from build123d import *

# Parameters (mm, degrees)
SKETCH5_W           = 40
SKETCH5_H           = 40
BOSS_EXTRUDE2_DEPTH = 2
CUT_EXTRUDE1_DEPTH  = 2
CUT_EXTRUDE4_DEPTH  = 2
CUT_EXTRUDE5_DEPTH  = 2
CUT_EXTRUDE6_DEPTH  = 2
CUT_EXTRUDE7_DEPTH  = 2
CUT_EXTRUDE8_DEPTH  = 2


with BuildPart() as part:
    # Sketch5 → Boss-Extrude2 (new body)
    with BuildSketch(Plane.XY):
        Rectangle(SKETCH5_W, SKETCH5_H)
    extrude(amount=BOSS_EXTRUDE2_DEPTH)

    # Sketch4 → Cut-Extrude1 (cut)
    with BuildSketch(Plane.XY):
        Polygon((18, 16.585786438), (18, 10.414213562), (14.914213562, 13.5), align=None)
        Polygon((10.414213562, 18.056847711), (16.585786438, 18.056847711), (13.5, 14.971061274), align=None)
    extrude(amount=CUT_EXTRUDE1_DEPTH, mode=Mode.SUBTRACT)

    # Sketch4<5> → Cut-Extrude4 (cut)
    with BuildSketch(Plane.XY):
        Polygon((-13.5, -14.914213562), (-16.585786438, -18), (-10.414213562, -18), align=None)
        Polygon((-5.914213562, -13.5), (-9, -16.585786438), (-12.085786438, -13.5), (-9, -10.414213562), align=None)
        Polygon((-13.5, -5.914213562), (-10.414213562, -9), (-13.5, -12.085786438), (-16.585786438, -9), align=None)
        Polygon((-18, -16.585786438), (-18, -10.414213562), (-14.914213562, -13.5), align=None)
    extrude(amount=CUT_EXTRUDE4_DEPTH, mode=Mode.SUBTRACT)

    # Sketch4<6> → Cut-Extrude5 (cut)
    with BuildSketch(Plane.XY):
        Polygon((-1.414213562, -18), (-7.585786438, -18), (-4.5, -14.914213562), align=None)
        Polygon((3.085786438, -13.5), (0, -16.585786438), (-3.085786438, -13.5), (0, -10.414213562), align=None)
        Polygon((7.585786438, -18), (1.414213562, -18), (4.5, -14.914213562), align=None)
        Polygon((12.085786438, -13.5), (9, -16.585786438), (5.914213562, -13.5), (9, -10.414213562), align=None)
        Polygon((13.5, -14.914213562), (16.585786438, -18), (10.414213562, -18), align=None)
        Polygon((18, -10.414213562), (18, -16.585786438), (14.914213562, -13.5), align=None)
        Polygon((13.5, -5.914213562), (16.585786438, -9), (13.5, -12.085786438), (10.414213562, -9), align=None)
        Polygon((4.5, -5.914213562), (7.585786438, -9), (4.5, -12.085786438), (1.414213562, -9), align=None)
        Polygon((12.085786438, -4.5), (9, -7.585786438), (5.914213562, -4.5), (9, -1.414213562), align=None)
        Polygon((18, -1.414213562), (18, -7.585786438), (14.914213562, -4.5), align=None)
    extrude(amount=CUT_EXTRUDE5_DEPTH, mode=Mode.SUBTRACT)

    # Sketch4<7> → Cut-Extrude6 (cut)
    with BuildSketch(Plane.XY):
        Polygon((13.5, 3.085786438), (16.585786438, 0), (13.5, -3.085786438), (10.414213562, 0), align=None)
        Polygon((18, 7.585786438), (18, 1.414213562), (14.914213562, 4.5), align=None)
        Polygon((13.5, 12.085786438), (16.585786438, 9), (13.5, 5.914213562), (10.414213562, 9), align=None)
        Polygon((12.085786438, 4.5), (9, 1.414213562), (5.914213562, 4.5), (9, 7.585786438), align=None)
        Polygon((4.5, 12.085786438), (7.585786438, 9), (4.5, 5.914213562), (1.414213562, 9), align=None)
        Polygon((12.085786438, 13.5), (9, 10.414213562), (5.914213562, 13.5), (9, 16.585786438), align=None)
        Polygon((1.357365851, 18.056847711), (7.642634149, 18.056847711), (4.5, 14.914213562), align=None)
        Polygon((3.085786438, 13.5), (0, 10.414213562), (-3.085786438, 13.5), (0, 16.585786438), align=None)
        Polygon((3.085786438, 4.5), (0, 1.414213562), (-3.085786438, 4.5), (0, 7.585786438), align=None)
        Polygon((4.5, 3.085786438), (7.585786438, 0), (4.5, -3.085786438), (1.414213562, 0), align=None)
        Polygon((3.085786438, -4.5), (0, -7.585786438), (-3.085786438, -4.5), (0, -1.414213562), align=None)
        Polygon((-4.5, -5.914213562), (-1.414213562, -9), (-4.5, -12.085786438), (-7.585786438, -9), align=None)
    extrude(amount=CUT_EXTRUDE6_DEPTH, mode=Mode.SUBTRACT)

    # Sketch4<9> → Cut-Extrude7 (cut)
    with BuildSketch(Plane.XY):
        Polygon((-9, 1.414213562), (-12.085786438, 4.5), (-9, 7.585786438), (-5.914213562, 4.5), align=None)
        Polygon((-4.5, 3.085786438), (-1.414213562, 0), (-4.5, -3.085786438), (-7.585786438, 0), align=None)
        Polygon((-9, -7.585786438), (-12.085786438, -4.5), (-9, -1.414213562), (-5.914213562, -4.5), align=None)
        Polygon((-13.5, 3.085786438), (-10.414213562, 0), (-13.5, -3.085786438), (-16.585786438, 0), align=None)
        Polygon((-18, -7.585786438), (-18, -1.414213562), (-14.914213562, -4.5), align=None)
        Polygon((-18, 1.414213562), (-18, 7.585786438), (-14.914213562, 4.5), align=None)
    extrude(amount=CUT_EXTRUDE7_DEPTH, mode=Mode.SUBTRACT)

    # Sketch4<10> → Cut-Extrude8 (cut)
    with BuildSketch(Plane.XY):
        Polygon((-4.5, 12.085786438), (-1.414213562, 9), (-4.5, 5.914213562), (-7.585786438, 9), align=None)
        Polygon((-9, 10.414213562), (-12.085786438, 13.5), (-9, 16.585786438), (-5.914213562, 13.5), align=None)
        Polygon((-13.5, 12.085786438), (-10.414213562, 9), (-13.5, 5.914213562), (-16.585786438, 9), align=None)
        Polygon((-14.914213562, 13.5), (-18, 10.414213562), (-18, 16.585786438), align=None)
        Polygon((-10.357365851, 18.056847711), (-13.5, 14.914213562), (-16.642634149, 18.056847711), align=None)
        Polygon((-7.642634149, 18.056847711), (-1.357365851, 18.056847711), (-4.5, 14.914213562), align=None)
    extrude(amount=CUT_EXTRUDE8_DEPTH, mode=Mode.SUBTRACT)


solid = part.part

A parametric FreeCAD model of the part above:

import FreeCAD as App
import Part
import Sketcher

V = App.Vector
Q = App.Units.Quantity

doc = App.newDocument("Part")
params = doc.addObject("Spreadsheet::Sheet", "Params")
for row, (alias, value) in enumerate([
    ("sketch1_width", "40 mm"),
    ("pad1_length", "2 mm"),
    ("pocket1_length", "2 mm"),
    ("pocket2_length", "2 mm"),
    ("pocket3_length", "2 mm"),
    ("pocket4_length", "2 mm"),
    ("pocket5_length", "2 mm"),
    ("pocket6_length", "2 mm"),
], start=1):
    params.set(f"A{row}", alias)
    params.set(f"B{row}", "=" + value)
    params.setAlias(f"B{row}", alias)

body = doc.addObject("PartDesign::Body", "Body")

sketch1 = body.newObject("Sketcher::SketchObject", "Sketch")
sketch1.AttachmentSupport = (doc.getObject("XY_Plane"), [""])
sketch1.MapMode = "FlatFace"
sketch1.addGeometry(Part.LineSegment(V(-20, 20, 0), V(-20, -20, 0)), False)
sketch1.addGeometry(Part.LineSegment(V(-20, -20, 0), V(20, -20, 0)), False)
sketch1.addGeometry(Part.LineSegment(V(20, -20, 0), V(20, 20, 0)), False)
sketch1.addGeometry(Part.LineSegment(V(20, 20, 0), V(-20, 20, 0)), False)
sketch1.addConstraint(Sketcher.Constraint("Coincident", 0, 2, 1, 1))
sketch1.addConstraint(Sketcher.Constraint("Coincident", 1, 2, 2, 1))
sketch1.addConstraint(Sketcher.Constraint("Coincident", 2, 2, 3, 1))
sketch1.addConstraint(Sketcher.Constraint("Coincident", 3, 2, 0, 1))
sketch1.addConstraint(Sketcher.Constraint("Vertical", 0))
sketch1.addConstraint(Sketcher.Constraint("Horizontal", 1))
sketch1.addConstraint(Sketcher.Constraint("Vertical", 2))
sketch1.addConstraint(Sketcher.Constraint("Horizontal", 3))
sketch1.addConstraint(Sketcher.Constraint("Symmetric", 0, 2, 2, 2, -1, 1))
sketch1.addConstraint(Sketcher.Constraint("Equal", 3, 0))
sketch1.addConstraint(Sketcher.Constraint("DistanceX", 1, 1, 1, 2, Q("40 mm")))
sketch1.setExpression("Constraints[10]", "Params.sketch1_width")
pad1 = body.newObject("PartDesign::Pad", "Pad")
pad1.Profile = sketch1
pad1.setExpression("Length", "Params.pad1_length")

sketch2 = body.newObject("Sketcher::SketchObject", "Sketch001")
sketch2.AttachmentSupport = (doc.getObject("XY_Plane"), [""])
sketch2.MapMode = "FlatFace"
sketch2.addGeometry(Part.LineSegment(V(18, 10.4, 0), V(18, 16.6, 0)), False)
sketch2.addGeometry(Part.LineSegment(V(18, 16.6, 0), V(14.9, 13.5, 0)), False)
sketch2.addGeometry(Part.LineSegment(V(14.9, 13.5, 0), V(18, 10.4, 0)), False)
sketch2.addGeometry(Part.LineSegment(V(16.6, 18.1, 0), V(10.4, 18.1, 0)), False)
sketch2.addGeometry(Part.LineSegment(V(10.4, 18.1, 0), V(13.5, 15, 0)), False)
sketch2.addGeometry(Part.LineSegment(V(13.5, 15, 0), V(16.6, 18.1, 0)), False)
sketch2.addConstraint(Sketcher.Constraint("Coincident", 0, 2, 1, 1))
sketch2.addConstraint(Sketcher.Constraint("Coincident", 1, 2, 2, 1))
sketch2.addConstraint(Sketcher.Constraint("Coincident", 2, 2, 0, 1))
sketch2.addConstraint(Sketcher.Constraint("Coincident", 3, 2, 4, 1))
sketch2.addConstraint(Sketcher.Constraint("Coincident", 4, 2, 5, 1))
sketch2.addConstraint(Sketcher.Constraint("Coincident", 5, 2, 3, 1))
sketch2.addConstraint(Sketcher.Constraint("Vertical", 0))
sketch2.addConstraint(Sketcher.Constraint("Horizontal", 3))
sketch2.addConstraint(Sketcher.Constraint("Perpendicular", 1, 2))
sketch2.addConstraint(Sketcher.Constraint("Parallel", 2, 4))
sketch2.addConstraint(Sketcher.Constraint("Perpendicular", 4, 5))
sketch2.addConstraint(Sketcher.Constraint("Equal", 3, 0))
sketch2.addConstraint(Sketcher.Constraint("Equal", 1, 2))
sketch2.addConstraint(Sketcher.Constraint("DistanceX", -1, 1, 0, 2, Q("18 mm")))
sketch2.addConstraint(Sketcher.Constraint("DistanceY", -1, 1, 1, 2, Q("13.5 mm")))
sketch2.addConstraint(Sketcher.Constraint("DistanceX", -1, 1, 4, 2, Q("13.5 mm")))
sketch2.addConstraint(Sketcher.Constraint("Distance", 1, Q("4.363961 mm")))
sketch2.addConstraint(Sketcher.Constraint("DistanceY", -1, 1, 4, 2, Q("14.971061 mm")))
pocket1 = body.newObject("PartDesign::Pocket", "Pocket")
pocket1.Profile = sketch2
pocket1.setExpression("Length", "Params.pocket1_length")
pocket1.Reversed = True

sketch3 = body.newObject("Sketcher::SketchObject", "Sketch002")
sketch3.AttachmentSupport = (doc.getObject("XY_Plane"), [""])
sketch3.MapMode = "FlatFace"
sketch3.addGeometry(Part.LineSegment(V(-13.5, -14.9, 0), V(-16.6, -18, 0)), False)
sketch3.addGeometry(Part.LineSegment(V(-16.6, -18, 0), V(-10.4, -18, 0)), False)
sketch3.addGeometry(Part.LineSegment(V(-10.4, -18, 0), V(-13.5, -14.9, 0)), False)
sketch3.addGeometry(Part.LineSegment(V(-9, -16.6, 0), V(-5.9, -13.5, 0)), False)
sketch3.addGeometry(Part.LineSegment(V(-5.9, -13.5, 0), V(-9, -10.4, 0)), False)
sketch3.addGeometry(Part.LineSegment(V(-9, -10.4, 0), V(-12.1, -13.5, 0)), False)
sketch3.addGeometry(Part.LineSegment(V(-12.1, -13.5, 0), V(-9, -16.6, 0)), False)
sketch3.addGeometry(Part.LineSegment(V(-10.4, -9, 0), V(-13.5, -5.9, 0)), False)
sketch3.addGeometry(Part.LineSegment(V(-13.5, -5.9, 0), V(-16.6, -9, 0)), False)
sketch3.addGeometry(Part.LineSegment(V(-16.6, -9, 0), V(-13.5, -12.1, 0)), False)
sketch3.addGeometry(Part.LineSegment(V(-13.5, -12.1, 0), V(-10.4, -9, 0)), False)
sketch3.addGeometry(Part.LineSegment(V(-18, -10.4, 0), V(-18, -16.6, 0)), False)
sketch3.addGeometry(Part.LineSegment(V(-18, -16.6, 0), V(-14.9, -13.5, 0)), False)
sketch3.addGeometry(Part.LineSegment(V(-14.9, -13.5, 0), V(-18, -10.4, 0)), False)
sketch3.addConstraint(Sketcher.Constraint("Coincident", 0, 2, 1, 1))
sketch3.addConstraint(Sketcher.Constraint("Coincident", 1, 2, 2, 1))
sketch3.addConstraint(Sketcher.Constraint("Coincident", 2, 2, 0, 1))
sketch3.addConstraint(Sketcher.Constraint("Coincident", 3, 2, 4, 1))
sketch3.addConstraint(Sketcher.Constraint("Coincident", 4, 2, 5, 1))
sketch3.addConstraint(Sketcher.Constraint("Coincident", 5, 2, 6, 1))
sketch3.addConstraint(Sketcher.Constraint("Coincident", 6, 2, 3, 1))
sketch3.addConstraint(Sketcher.Constraint("Coincident", 7, 2, 8, 1))
sketch3.addConstraint(Sketcher.Constraint("Coincident", 8, 2, 9, 1))
sketch3.addConstraint(Sketcher.Constraint("Coincident", 9, 2, 10, 1))
sketch3.addConstraint(Sketcher.Constraint("Coincident", 10, 2, 7, 1))
sketch3.addConstraint(Sketcher.Constraint("Coincident", 11, 2, 12, 1))
sketch3.addConstraint(Sketcher.Constraint("Coincident", 12, 2, 13, 1))
sketch3.addConstraint(Sketcher.Constraint("Coincident", 13, 2, 11, 1))
sketch3.addConstraint(Sketcher.Constraint("Horizontal", 1))
sketch3.addConstraint(Sketcher.Constraint("Vertical", 11))
sketch3.addConstraint(Sketcher.Constraint("Perpendicular", 0, 2))
sketch3.addConstraint(Sketcher.Constraint("Perpendicular", 2, 3))
sketch3.addConstraint(Sketcher.Constraint("Perpendicular", 3, 4))
sketch3.addConstraint(Sketcher.Constraint("Perpendicular", 4, 5))
sketch3.addConstraint(Sketcher.Constraint("Perpendicular", 5, 6))
sketch3.addConstraint(Sketcher.Constraint("Parallel", 6, 7))
sketch3.addConstraint(Sketcher.Constraint("Perpendicular", 7, 8))
sketch3.addConstraint(Sketcher.Constraint("Perpendicular", 8, 9))
sketch3.addConstraint(Sketcher.Constraint("Perpendicular", 9, 10))
sketch3.addConstraint(Sketcher.Constraint("Parallel", 10, 12))
sketch3.addConstraint(Sketcher.Constraint("Perpendicular", 12, 13))
sketch3.addConstraint(Sketcher.Constraint("Horizontal", 3, 2, 5, 2))
sketch3.addConstraint(Sketcher.Constraint("Horizontal", 8, 2, 10, 2))
sketch3.addConstraint(Sketcher.Constraint("Horizontal", 6, 2, 11, 2))
sketch3.addConstraint(Sketcher.Constraint("Horizontal", 5, 2, 12, 2))
sketch3.addConstraint(Sketcher.Constraint("Horizontal", 4, 2, 13, 2))
sketch3.addConstraint(Sketcher.Constraint("Vertical", 2, 2, 7, 2))
sketch3.addConstraint(Sketcher.Constraint("Vertical", 0, 2, 8, 2))
sketch3.addConstraint(Sketcher.Constraint("Equal", 1, 11))
sketch3.addConstraint(Sketcher.Constraint("DistanceY", 0, 2, -1, 1, Q("18 mm")))
sketch3.addConstraint(Sketcher.Constraint("DistanceX", 4, 2, -1, 1, Q("9 mm")))
sketch3.addConstraint(Sketcher.Constraint("DistanceY", 8, 2, -1, 1, Q("9 mm")))
sketch3.addConstraint(Sketcher.Constraint("DistanceX", 11, 2, -1, 1, Q("18 mm")))
sketch3.addConstraint(Sketcher.Constraint("DistanceX", 2, 2, -1, 1, Q("13.5 mm")))
sketch3.addConstraint(Sketcher.Constraint("DistanceY", 3, 2, -1, 1, Q("13.5 mm")))
sketch3.addConstraint(Sketcher.Constraint("Distance", 0, Q("4.363961 mm")))
pocket2 = body.newObject("PartDesign::Pocket", "Pocket001")
pocket2.Profile = sketch3
pocket2.setExpression("Length", "Params.pocket2_length")
pocket2.Reversed = True

sketch4 = body.newObject("Sketcher::SketchObject", "Sketch003")
sketch4.AttachmentSupport = (doc.getObject("XY_Plane"), [""])
sketch4.MapMode = "FlatFace"
sketch4.addGeometry(Part.LineSegment(V(-7.6, -18, 0), V(-1.4, -18, 0)), False)
sketch4.addGeometry(Part.LineSegment(V(-1.4, -18, 0), V(-4.5, -14.9, 0)), False)
sketch4.addGeometry(Part.LineSegment(V(-4.5, -14.9, 0), V(-7.6, -18, 0)), False)
sketch4.addGeometry(Part.LineSegment(V(0, -16.6, 0), V(3.1, -13.5, 0)), False)
sketch4.addGeometry(Part.LineSegment(V(3.1, -13.5, 0), V(0, -10.4, 0)), False)
sketch4.addGeometry(Part.LineSegment(V(0, -10.4, 0), V(-3.1, -13.5, 0)), False)
sketch4.addGeometry(Part.LineSegment(V(-3.1, -13.5, 0), V(0, -16.6, 0)), False)
sketch4.addGeometry(Part.LineSegment(V(1.4, -18, 0), V(7.6, -18, 0)), False)
sketch4.addGeometry(Part.LineSegment(V(7.6, -18, 0), V(4.5, -14.9, 0)), False)
sketch4.addGeometry(Part.LineSegment(V(4.5, -14.9, 0), V(1.4, -18, 0)), False)
sketch4.addGeometry(Part.LineSegment(V(9, -16.6, 0), V(12.1, -13.5, 0)), False)
sketch4.addGeometry(Part.LineSegment(V(12.1, -13.5, 0), V(9, -10.4, 0)), False)
sketch4.addGeometry(Part.LineSegment(V(9, -10.4, 0), V(5.9, -13.5, 0)), False)
sketch4.addGeometry(Part.LineSegment(V(5.9, -13.5, 0), V(9, -16.6, 0)), False)
sketch4.addGeometry(Part.LineSegment(V(16.6, -18, 0), V(13.5, -14.9, 0)), False)
sketch4.addGeometry(Part.LineSegment(V(13.5, -14.9, 0), V(10.4, -18, 0)), False)
sketch4.addGeometry(Part.LineSegment(V(10.4, -18, 0), V(16.6, -18, 0)), False)
sketch4.addGeometry(Part.LineSegment(V(18, -16.6, 0), V(18, -10.4, 0)), False)
sketch4.addGeometry(Part.LineSegment(V(18, -10.4, 0), V(14.9, -13.5, 0)), False)
sketch4.addGeometry(Part.LineSegment(V(14.9, -13.5, 0), V(18, -16.6, 0)), False)
sketch4.addGeometry(Part.LineSegment(V(16.6, -9, 0), V(13.5, -5.9, 0)), False)
sketch4.addGeometry(Part.LineSegment(V(13.5, -5.9, 0), V(10.4, -9, 0)), False)
sketch4.addGeometry(Part.LineSegment(V(10.4, -9, 0), V(13.5, -12.1, 0)), False)
sketch4.addGeometry(Part.LineSegment(V(13.5, -12.1, 0), V(16.6, -9, 0)), False)
sketch4.addGeometry(Part.LineSegment(V(7.6, -9, 0), V(4.5, -5.9, 0)), False)
sketch4.addGeometry(Part.LineSegment(V(4.5, -5.9, 0), V(1.4, -9, 0)), False)
sketch4.addGeometry(Part.LineSegment(V(1.4, -9, 0), V(4.5, -12.1, 0)), False)
sketch4.addGeometry(Part.LineSegment(V(4.5, -12.1, 0), V(7.6, -9, 0)), False)
sketch4.addGeometry(Part.LineSegment(V(9, -7.6, 0), V(12.1, -4.5, 0)), False)
sketch4.addGeometry(Part.LineSegment(V(12.1, -4.5, 0), V(9, -1.4, 0)), False)
sketch4.addGeometry(Part.LineSegment(V(9, -1.4, 0), V(5.9, -4.5, 0)), False)
sketch4.addGeometry(Part.LineSegment(V(5.9, -4.5, 0), V(9, -7.6, 0)), False)
sketch4.addGeometry(Part.LineSegment(V(18, -7.6, 0), V(18, -1.4, 0)), False)
sketch4.addGeometry(Part.LineSegment(V(18, -1.4, 0), V(14.9, -4.5, 0)), False)
sketch4.addGeometry(Part.LineSegment(V(14.9, -4.5, 0), V(18, -7.6, 0)), False)
sketch4.addConstraint(Sketcher.Constraint("Coincident", 0, 2, 1, 1))
sketch4.addConstraint(Sketcher.Constraint("Coincident", 1, 2, 2, 1))
sketch4.addConstraint(Sketcher.Constraint("Coincident", 2, 2, 0, 1))
sketch4.addConstraint(Sketcher.Constraint("Coincident", 3, 2, 4, 1))
sketch4.addConstraint(Sketcher.Constraint("Coincident", 4, 2, 5, 1))
sketch4.addConstraint(Sketcher.Constraint("Coincident", 5, 2, 6, 1))
sketch4.addConstraint(Sketcher.Constraint("Coincident", 6, 2, 3, 1))
sketch4.addConstraint(Sketcher.Constraint("Coincident", 7, 2, 8, 1))
sketch4.addConstraint(Sketcher.Constraint("Coincident", 8, 2, 9, 1))
sketch4.addConstraint(Sketcher.Constraint("Coincident", 9, 2, 7, 1))
sketch4.addConstraint(Sketcher.Constraint("Coincident", 10, 2, 11, 1))
sketch4.addConstraint(Sketcher.Constraint("Coincident", 11, 2, 12, 1))
sketch4.addConstraint(Sketcher.Constraint("Coincident", 12, 2, 13, 1))
sketch4.addConstraint(Sketcher.Constraint("Coincident", 13, 2, 10, 1))
sketch4.addConstraint(Sketcher.Constraint("Coincident", 14, 2, 15, 1))
sketch4.addConstraint(Sketcher.Constraint("Coincident", 15, 2, 16, 1))
sketch4.addConstraint(Sketcher.Constraint("Coincident", 16, 2, 14, 1))
sketch4.addConstraint(Sketcher.Constraint("Coincident", 17, 2, 18, 1))
sketch4.addConstraint(Sketcher.Constraint("Coincident", 18, 2, 19, 1))
sketch4.addConstraint(Sketcher.Constraint("Coincident", 19, 2, 17, 1))
sketch4.addConstraint(Sketcher.Constraint("Coincident", 20, 2, 21, 1))
sketch4.addConstraint(Sketcher.Constraint("Coincident", 21, 2, 22, 1))
sketch4.addConstraint(Sketcher.Constraint("Coincident", 22, 2, 23, 1))
sketch4.addConstraint(Sketcher.Constraint("Coincident", 23, 2, 20, 1))
sketch4.addConstraint(Sketcher.Constraint("Coincident", 24, 2, 25, 1))
sketch4.addConstraint(Sketcher.Constraint("Coincident", 25, 2, 26, 1))
sketch4.addConstraint(Sketcher.Constraint("Coincident", 26, 2, 27, 1))
sketch4.addConstraint(Sketcher.Constraint("Coincident", 27, 2, 24, 1))
sketch4.addConstraint(Sketcher.Constraint("Coincident", 28, 2, 29, 1))
sketch4.addConstraint(Sketcher.Constraint("Coincident", 29, 2, 30, 1))
sketch4.addConstraint(Sketcher.Constraint("Coincident", 30, 2, 31, 1))
sketch4.addConstraint(Sketcher.Constraint("Coincident", 31, 2, 28, 1))
sketch4.addConstraint(Sketcher.Constraint("Coincident", 32, 2, 33, 1))
sketch4.addConstraint(Sketcher.Constraint("Coincident", 33, 2, 34, 1))
sketch4.addConstraint(Sketcher.Constraint("Coincident", 34, 2, 32, 1))
sketch4.addConstraint(Sketcher.Constraint("Horizontal", 0))
sketch4.addConstraint(Sketcher.Constraint("Horizontal", 7))
sketch4.addConstraint(Sketcher.Constraint("Horizontal", 16))
sketch4.addConstraint(Sketcher.Constraint("Vertical", 17))
sketch4.addConstraint(Sketcher.Constraint("Vertical", 32))
sketch4.addConstraint(Sketcher.Constraint("Symmetric", 3, 2, 5, 2, -2))
sketch4.addConstraint(Sketcher.Constraint("Symmetric", 2, 2, 7, 2, -2))
sketch4.addConstraint(Sketcher.Constraint("Symmetric", 1, 2, 8, 2, -2))
sketch4.addConstraint(Sketcher.Constraint("PointOnObject", 4, 2, -2))
sketch4.addConstraint(Sketcher.Constraint("PointOnObject", 6, 2, -2))
sketch4.addConstraint(Sketcher.Constraint("Perpendicular", 1, 2))
sketch4.addConstraint(Sketcher.Constraint("Parallel", 2, 3))
sketch4.addConstraint(Sketcher.Constraint("Perpendicular", 3, 4))
sketch4.addConstraint(Sketcher.Constraint("Perpendicular", 4, 5))
sketch4.addConstraint(Sketcher.Constraint("Perpendicular", 8, 9))
sketch4.addConstraint(Sketcher.Constraint("Parallel", 9, 10))
sketch4.addConstraint(Sketcher.Constraint("Perpendicular", 10, 11))
sketch4.addConstraint(Sketcher.Constraint("Perpendicular", 11, 12))
sketch4.addConstraint(Sketcher.Constraint("Perpendicular", 12, 13))
sketch4.addConstraint(Sketcher.Constraint("Parallel", 13, 14))
sketch4.addConstraint(Sketcher.Constraint("Perpendicular", 14, 15))
sketch4.addConstraint(Sketcher.Constraint("Parallel", 15, 18))
sketch4.addConstraint(Sketcher.Constraint("Perpendicular", 18, 19))
sketch4.addConstraint(Sketcher.Constraint("Parallel", 19, 20))
sketch4.addConstraint(Sketcher.Constraint("Perpendicular", 20, 21))
sketch4.addConstraint(Sketcher.Constraint("Perpendicular", 21, 22))
sketch4.addConstraint(Sketcher.Constraint("Perpendicular", 22, 23))
sketch4.addConstraint(Sketcher.Constraint("Perpendicular", 23, 24))
sketch4.addConstraint(Sketcher.Constraint("Perpendicular", 24, 25))
sketch4.addConstraint(Sketcher.Constraint("Perpendicular", 25, 26))
sketch4.addConstraint(Sketcher.Constraint("Perpendicular", 26, 27))
sketch4.addConstraint(Sketcher.Constraint("Parallel", 27, 28))
sketch4.addConstraint(Sketcher.Constraint("Perpendicular", 28, 29))
sketch4.addConstraint(Sketcher.Constraint("Perpendicular", 29, 30))
sketch4.addConstraint(Sketcher.Constraint("Perpendicular", 30, 31))
sketch4.addConstraint(Sketcher.Constraint("Perpendicular", 31, 33))
sketch4.addConstraint(Sketcher.Constraint("Perpendicular", 33, 34))
sketch4.addConstraint(Sketcher.Constraint("Horizontal", 5, 2, 10, 2))
sketch4.addConstraint(Sketcher.Constraint("Horizontal", 4, 2, 11, 2))
sketch4.addConstraint(Sketcher.Constraint("Horizontal", 10, 2, 12, 2))
sketch4.addConstraint(Sketcher.Constraint("Horizontal", 8, 2, 14, 2))
sketch4.addConstraint(Sketcher.Constraint("Horizontal", 9, 2, 15, 2))
sketch4.addConstraint(Sketcher.Constraint("Horizontal", 11, 2, 17, 2))
sketch4.addConstraint(Sketcher.Constraint("Horizontal", 12, 2, 18, 2))
sketch4.addConstraint(Sketcher.Constraint("Horizontal", 21, 2, 23, 2))
sketch4.addConstraint(Sketcher.Constraint("Horizontal", 20, 2, 24, 2))
sketch4.addConstraint(Sketcher.Constraint("Horizontal", 23, 2, 25, 2))
sketch4.addConstraint(Sketcher.Constraint("Horizontal", 22, 2, 26, 2))
sketch4.addConstraint(Sketcher.Constraint("Horizontal", 28, 2, 30, 2))
sketch4.addConstraint(Sketcher.Constraint("Horizontal", 29, 2, 32, 2))
sketch4.addConstraint(Sketcher.Constraint("Horizontal", 30, 2, 33, 2))
sketch4.addConstraint(Sketcher.Constraint("Vertical", 14, 2, 20, 2))
sketch4.addConstraint(Sketcher.Constraint("Vertical", 15, 2, 21, 2))
sketch4.addConstraint(Sketcher.Constraint("Vertical", 8, 2, 24, 2))
sketch4.addConstraint(Sketcher.Constraint("Vertical", 10, 2, 28, 2))
sketch4.addConstraint(Sketcher.Constraint("Vertical", 13, 2, 29, 2))
sketch4.addConstraint(Sketcher.Constraint("Vertical", 19, 2, 32, 2))
sketch4.addConstraint(Sketcher.Constraint("Equal", 16, 17))
sketch4.addConstraint(Sketcher.Constraint("DistanceY", 0, 2, -1, 1, Q("18 mm")))
sketch4.addConstraint(Sketcher.Constraint("DistanceX", -1, 1, 11, 2, Q("9 mm")))
sketch4.addConstraint(Sketcher.Constraint("DistanceX", -1, 1, 17, 2, Q("18 mm")))
sketch4.addConstraint(Sketcher.Constraint("DistanceY", 21, 2, -1, 1, Q("9 mm")))
sketch4.addConstraint(Sketcher.Constraint("DistanceX", 0, 2, 7, 2, Q("9 mm")))
sketch4.addConstraint(Sketcher.Constraint("DistanceX", 7, 2, 16, 2, Q("9 mm")))
sketch4.addConstraint(Sketcher.Constraint("DistanceY", 17, 2, 32, 2, Q("9 mm")))
sketch4.addConstraint(Sketcher.Constraint("DistanceY", 3, 2, -1, 1, Q("13.5 mm")))
sketch4.addConstraint(Sketcher.Constraint("Distance", 1, Q("4.363961 mm")))
pocket3 = body.newObject("PartDesign::Pocket", "Pocket002")
pocket3.Profile = sketch4
pocket3.setExpression("Length", "Params.pocket3_length")
pocket3.Reversed = True

sketch5 = body.newObject("Sketcher::SketchObject", "Sketch004")
sketch5.AttachmentSupport = (doc.getObject("XY_Plane"), [""])
sketch5.MapMode = "FlatFace"
sketch5.addGeometry(Part.LineSegment(V(16.6, 0, 0), V(13.5, 3.1, 0)), False)
sketch5.addGeometry(Part.LineSegment(V(13.5, 3.1, 0), V(10.4, 0, 0)), False)
sketch5.addGeometry(Part.LineSegment(V(10.4, 0, 0), V(13.5, -3.1, 0)), False)
sketch5.addGeometry(Part.LineSegment(V(13.5, -3.1, 0), V(16.6, 0, 0)), False)
sketch5.addGeometry(Part.LineSegment(V(18, 1.4, 0), V(18, 7.6, 0)), False)
sketch5.addGeometry(Part.LineSegment(V(18, 7.6, 0), V(14.9, 4.5, 0)), False)
sketch5.addGeometry(Part.LineSegment(V(14.9, 4.5, 0), V(18, 1.4, 0)), False)
sketch5.addGeometry(Part.LineSegment(V(16.6, 9, 0), V(13.5, 12.1, 0)), False)
sketch5.addGeometry(Part.LineSegment(V(13.5, 12.1, 0), V(10.4, 9, 0)), False)
sketch5.addGeometry(Part.LineSegment(V(10.4, 9, 0), V(13.5, 5.9, 0)), False)
sketch5.addGeometry(Part.LineSegment(V(13.5, 5.9, 0), V(16.6, 9, 0)), False)
sketch5.addGeometry(Part.LineSegment(V(9, 1.4, 0), V(12.1, 4.5, 0)), False)
sketch5.addGeometry(Part.LineSegment(V(12.1, 4.5, 0), V(9, 7.6, 0)), False)
sketch5.addGeometry(Part.LineSegment(V(9, 7.6, 0), V(5.9, 4.5, 0)), False)
sketch5.addGeometry(Part.LineSegment(V(5.9, 4.5, 0), V(9, 1.4, 0)), False)
sketch5.addGeometry(Part.LineSegment(V(7.6, 9, 0), V(4.5, 12.1, 0)), False)
sketch5.addGeometry(Part.LineSegment(V(4.5, 12.1, 0), V(1.4, 9, 0)), False)
sketch5.addGeometry(Part.LineSegment(V(1.4, 9, 0), V(4.5, 5.9, 0)), False)
sketch5.addGeometry(Part.LineSegment(V(4.5, 5.9, 0), V(7.6, 9, 0)), False)
sketch5.addGeometry(Part.LineSegment(V(9, 10.4, 0), V(12.1, 13.5, 0)), False)
sketch5.addGeometry(Part.LineSegment(V(12.1, 13.5, 0), V(9, 16.6, 0)), False)
sketch5.addGeometry(Part.LineSegment(V(9, 16.6, 0), V(5.9, 13.5, 0)), False)
sketch5.addGeometry(Part.LineSegment(V(5.9, 13.5, 0), V(9, 10.4, 0)), False)
sketch5.addGeometry(Part.LineSegment(V(7.6, 18.1, 0), V(1.4, 18.1, 0)), False)
sketch5.addGeometry(Part.LineSegment(V(1.4, 18.1, 0), V(4.5, 14.9, 0)), False)
sketch5.addGeometry(Part.LineSegment(V(4.5, 14.9, 0), V(7.6, 18.1, 0)), False)
sketch5.addGeometry(Part.LineSegment(V(0, 10.4, 0), V(3.1, 13.5, 0)), False)
sketch5.addGeometry(Part.LineSegment(V(3.1, 13.5, 0), V(0, 16.6, 0)), False)
sketch5.addGeometry(Part.LineSegment(V(0, 16.6, 0), V(-3.1, 13.5, 0)), False)
sketch5.addGeometry(Part.LineSegment(V(-3.1, 13.5, 0), V(0, 10.4, 0)), False)
sketch5.addGeometry(Part.LineSegment(V(0, 1.4, 0), V(3.1, 4.5, 0)), False)
sketch5.addGeometry(Part.LineSegment(V(3.1, 4.5, 0), V(0, 7.6, 0)), False)
sketch5.addGeometry(Part.LineSegment(V(0, 7.6, 0), V(-3.1, 4.5, 0)), False)
sketch5.addGeometry(Part.LineSegment(V(-3.1, 4.5, 0), V(0, 1.4, 0)), False)
sketch5.addGeometry(Part.LineSegment(V(7.6, 0, 0), V(4.5, 3.1, 0)), False)
sketch5.addGeometry(Part.LineSegment(V(4.5, 3.1, 0), V(1.4, 0, 0)), False)
sketch5.addGeometry(Part.LineSegment(V(1.4, 0, 0), V(4.5, -3.1, 0)), False)
sketch5.addGeometry(Part.LineSegment(V(4.5, -3.1, 0), V(7.6, 0, 0)), False)
sketch5.addGeometry(Part.LineSegment(V(0, -7.6, 0), V(3.1, -4.5, 0)), False)
sketch5.addGeometry(Part.LineSegment(V(3.1, -4.5, 0), V(0, -1.4, 0)), False)
sketch5.addGeometry(Part.LineSegment(V(0, -1.4, 0), V(-3.1, -4.5, 0)), False)
sketch5.addGeometry(Part.LineSegment(V(-3.1, -4.5, 0), V(0, -7.6, 0)), False)
sketch5.addGeometry(Part.LineSegment(V(-1.4, -9, 0), V(-4.5, -5.9, 0)), False)
sketch5.addGeometry(Part.LineSegment(V(-4.5, -5.9, 0), V(-7.6, -9, 0)), False)
sketch5.addGeometry(Part.LineSegment(V(-7.6, -9, 0), V(-4.5, -12.1, 0)), False)
sketch5.addGeometry(Part.LineSegment(V(-4.5, -12.1, 0), V(-1.4, -9, 0)), False)
sketch5.addConstraint(Sketcher.Constraint("Coincident", 0, 2, 1, 1))
sketch5.addConstraint(Sketcher.Constraint("Coincident", 1, 2, 2, 1))
sketch5.addConstraint(Sketcher.Constraint("Coincident", 2, 2, 3, 1))
sketch5.addConstraint(Sketcher.Constraint("Coincident", 3, 2, 0, 1))
sketch5.addConstraint(Sketcher.Constraint("Coincident", 4, 2, 5, 1))
sketch5.addConstraint(Sketcher.Constraint("Coincident", 5, 2, 6, 1))
sketch5.addConstraint(Sketcher.Constraint("Coincident", 6, 2, 4, 1))
sketch5.addConstraint(Sketcher.Constraint("Coincident", 7, 2, 8, 1))
sketch5.addConstraint(Sketcher.Constraint("Coincident", 8, 2, 9, 1))
sketch5.addConstraint(Sketcher.Constraint("Coincident", 9, 2, 10, 1))
sketch5.addConstraint(Sketcher.Constraint("Coincident", 10, 2, 7, 1))
sketch5.addConstraint(Sketcher.Constraint("Coincident", 11, 2, 12, 1))
sketch5.addConstraint(Sketcher.Constraint("Coincident", 12, 2, 13, 1))
sketch5.addConstraint(Sketcher.Constraint("Coincident", 13, 2, 14, 1))
sketch5.addConstraint(Sketcher.Constraint("Coincident", 14, 2, 11, 1))
sketch5.addConstraint(Sketcher.Constraint("Coincident", 15, 2, 16, 1))
sketch5.addConstraint(Sketcher.Constraint("Coincident", 16, 2, 17, 1))
sketch5.addConstraint(Sketcher.Constraint("Coincident", 17, 2, 18, 1))
sketch5.addConstraint(Sketcher.Constraint("Coincident", 18, 2, 15, 1))
sketch5.addConstraint(Sketcher.Constraint("Coincident", 19, 2, 20, 1))
sketch5.addConstraint(Sketcher.Constraint("Coincident", 20, 2, 21, 1))
sketch5.addConstraint(Sketcher.Constraint("Coincident", 21, 2, 22, 1))
sketch5.addConstraint(Sketcher.Constraint("Coincident", 22, 2, 19, 1))
sketch5.addConstraint(Sketcher.Constraint("Coincident", 23, 2, 24, 1))
sketch5.addConstraint(Sketcher.Constraint("Coincident", 24, 2, 25, 1))
sketch5.addConstraint(Sketcher.Constraint("Coincident", 25, 2, 23, 1))
sketch5.addConstraint(Sketcher.Constraint("Coincident", 26, 2, 27, 1))
sketch5.addConstraint(Sketcher.Constraint("Coincident", 27, 2, 28, 1))
sketch5.addConstraint(Sketcher.Constraint("Coincident", 28, 2, 29, 1))
sketch5.addConstraint(Sketcher.Constraint("Coincident", 29, 2, 26, 1))
sketch5.addConstraint(Sketcher.Constraint("Coincident", 30, 2, 31, 1))
sketch5.addConstraint(Sketcher.Constraint("Coincident", 31, 2, 32, 1))
sketch5.addConstraint(Sketcher.Constraint("Coincident", 32, 2, 33, 1))
sketch5.addConstraint(Sketcher.Constraint("Coincident", 33, 2, 30, 1))
sketch5.addConstraint(Sketcher.Constraint("Coincident", 34, 2, 35, 1))
sketch5.addConstraint(Sketcher.Constraint("Coincident", 35, 2, 36, 1))
sketch5.addConstraint(Sketcher.Constraint("Coincident", 36, 2, 37, 1))
sketch5.addConstraint(Sketcher.Constraint("Coincident", 37, 2, 34, 1))
sketch5.addConstraint(Sketcher.Constraint("Coincident", 38, 2, 39, 1))
sketch5.addConstraint(Sketcher.Constraint("Coincident", 39, 2, 40, 1))
sketch5.addConstraint(Sketcher.Constraint("Coincident", 40, 2, 41, 1))
sketch5.addConstraint(Sketcher.Constraint("Coincident", 41, 2, 38, 1))
sketch5.addConstraint(Sketcher.Constraint("Coincident", 42, 2, 43, 1))
sketch5.addConstraint(Sketcher.Constraint("Coincident", 43, 2, 44, 1))
sketch5.addConstraint(Sketcher.Constraint("Coincident", 44, 2, 45, 1))
sketch5.addConstraint(Sketcher.Constraint("Coincident", 45, 2, 42, 1))
sketch5.addConstraint(Sketcher.Constraint("Vertical", 4))
sketch5.addConstraint(Sketcher.Constraint("Horizontal", 23))
sketch5.addConstraint(Sketcher.Constraint("Symmetric", 32, 2, 38, 2, -1, 1))
sketch5.addConstraint(Sketcher.Constraint("Symmetric", 33, 2, 39, 2, -1, 1))
sketch5.addConstraint(Sketcher.Constraint("Symmetric", 30, 2, 40, 2, -1, 1))
sketch5.addConstraint(Sketcher.Constraint("Symmetric", 31, 2, 41, 2, -1, 1))
sketch5.addConstraint(Sketcher.Constraint("Symmetric", 17, 2, 42, 2, -1, 1))
sketch5.addConstraint(Sketcher.Constraint("Symmetric", 18, 2, 43, 2, -1, 1))
sketch5.addConstraint(Sketcher.Constraint("Symmetric", 15, 2, 44, 2, -1, 1))
sketch5.addConstraint(Sketcher.Constraint("Symmetric", 16, 2, 45, 2, -1, 1))
sketch5.addConstraint(Sketcher.Constraint("Symmetric", 26, 2, 28, 2, -2))
sketch5.addConstraint(Sketcher.Constraint("Symmetric", 30, 2, 32, 2, -2))
sketch5.addConstraint(Sketcher.Constraint("Symmetric", 0, 2, 2, 2, -1))
sketch5.addConstraint(Sketcher.Constraint("Symmetric", 34, 2, 36, 2, -1))
sketch5.addConstraint(Sketcher.Constraint("PointOnObject", 1, 2, -1))
sketch5.addConstraint(Sketcher.Constraint("PointOnObject", 3, 2, -1))
sketch5.addConstraint(Sketcher.Constraint("PointOnObject", 27, 2, -2))
sketch5.addConstraint(Sketcher.Constraint("PointOnObject", 29, 2, -2))
sketch5.addConstraint(Sketcher.Constraint("PointOnObject", 31, 2, -2))
sketch5.addConstraint(Sketcher.Constraint("PointOnObject", 33, 2, -2))
sketch5.addConstraint(Sketcher.Constraint("PointOnObject", 35, 2, -1))
sketch5.addConstraint(Sketcher.Constraint("PointOnObject", 37, 2, -1))
sketch5.addConstraint(Sketcher.Constraint("Perpendicular", 0, 1))
sketch5.addConstraint(Sketcher.Constraint("Perpendicular", 1, 2))
sketch5.addConstraint(Sketcher.Constraint("Parallel", 3, 5))
sketch5.addConstraint(Sketcher.Constraint("Perpendicular", 5, 6))
sketch5.addConstraint(Sketcher.Constraint("Parallel", 6, 7))
sketch5.addConstraint(Sketcher.Constraint("Perpendicular", 7, 8))
sketch5.addConstraint(Sketcher.Constraint("Perpendicular", 8, 9))
sketch5.addConstraint(Sketcher.Constraint("Perpendicular", 9, 10))
sketch5.addConstraint(Sketcher.Constraint("Parallel", 10, 11))
sketch5.addConstraint(Sketcher.Constraint("Perpendicular", 11, 12))
sketch5.addConstraint(Sketcher.Constraint("Perpendicular", 12, 13))
sketch5.addConstraint(Sketcher.Constraint("Perpendicular", 13, 14))
sketch5.addConstraint(Sketcher.Constraint("Parallel", 14, 15))
sketch5.addConstraint(Sketcher.Constraint("Perpendicular", 15, 16))
sketch5.addConstraint(Sketcher.Constraint("Perpendicular", 16, 17))
sketch5.addConstraint(Sketcher.Constraint("Perpendicular", 17, 18))
sketch5.addConstraint(Sketcher.Constraint("Parallel", 18, 19))
sketch5.addConstraint(Sketcher.Constraint("Perpendicular", 19, 20))
sketch5.addConstraint(Sketcher.Constraint("Perpendicular", 20, 21))
sketch5.addConstraint(Sketcher.Constraint("Perpendicular", 21, 22))
sketch5.addConstraint(Sketcher.Constraint("Parallel", 22, 24))
sketch5.addConstraint(Sketcher.Constraint("Perpendicular", 24, 25))
sketch5.addConstraint(Sketcher.Constraint("Parallel", 25, 26))
sketch5.addConstraint(Sketcher.Constraint("Perpendicular", 26, 27))
sketch5.addConstraint(Sketcher.Constraint("Perpendicular", 29, 30))
sketch5.addConstraint(Sketcher.Constraint("Perpendicular", 30, 31))
sketch5.addConstraint(Sketcher.Constraint("Parallel", 33, 34))
sketch5.addConstraint(Sketcher.Constraint("Perpendicular", 34, 35))
sketch5.addConstraint(Sketcher.Constraint("Horizontal", 8, 2, 10, 2))
sketch5.addConstraint(Sketcher.Constraint("Horizontal", 5, 2, 11, 2))
sketch5.addConstraint(Sketcher.Constraint("Horizontal", 4, 2, 12, 2))
sketch5.addConstraint(Sketcher.Constraint("Horizontal", 11, 2, 13, 2))
sketch5.addConstraint(Sketcher.Constraint("Horizontal", 7, 2, 15, 2))
sketch5.addConstraint(Sketcher.Constraint("Horizontal", 10, 2, 16, 2))
sketch5.addConstraint(Sketcher.Constraint("Horizontal", 9, 2, 17, 2))
sketch5.addConstraint(Sketcher.Constraint("Horizontal", 19, 2, 21, 2))
sketch5.addConstraint(Sketcher.Constraint("Horizontal", 21, 2, 26, 2))
sketch5.addConstraint(Sketcher.Constraint("Horizontal", 20, 2, 27, 2))
sketch5.addConstraint(Sketcher.Constraint("Horizontal", 13, 2, 30, 2))
sketch5.addConstraint(Sketcher.Constraint("Horizontal", 12, 2, 31, 2))
sketch5.addConstraint(Sketcher.Constraint("Horizontal", 0, 2, 34, 2))
sketch5.addConstraint(Sketcher.Constraint("Vertical", 2, 2, 7, 2))
sketch5.addConstraint(Sketcher.Constraint("Vertical", 1, 2, 8, 2))
sketch5.addConstraint(Sketcher.Constraint("Vertical", 11, 2, 19, 2))
sketch5.addConstraint(Sketcher.Constraint("Vertical", 14, 2, 20, 2))
sketch5.addConstraint(Sketcher.Constraint("Vertical", 17, 2, 24, 2))
sketch5.addConstraint(Sketcher.Constraint("Vertical", 24, 2, 34, 2))
sketch5.addConstraint(Sketcher.Constraint("Equal", 3, 5))
sketch5.addConstraint(Sketcher.Constraint("DistanceX", -1, 1, 4, 2, Q("18 mm")))
sketch5.addConstraint(Sketcher.Constraint("DistanceY", -1, 1, 8, 2, Q("9 mm")))
sketch5.addConstraint(Sketcher.Constraint("DistanceX", -1, 1, 12, 2, Q("9 mm")))
sketch5.addConstraint(Sketcher.Constraint("DistanceX", 15, 2, 7, 2, Q("9 mm")))
sketch5.addConstraint(Sketcher.Constraint("DistanceX", -1, 1, 0, 2, Q("13.5 mm")))
sketch5.addConstraint(Sketcher.Constraint("DistanceY", -1, 1, 5, 2, Q("4.5 mm")))
sketch5.addConstraint(Sketcher.Constraint("DistanceY", -1, 1, 19, 2, Q("13.5 mm")))
sketch5.addConstraint(Sketcher.Constraint("DistanceY", 22, 2, 24, 2, Q("4.5 mm")))
sketch5.addConstraint(Sketcher.Constraint("DistanceX", 23, 2, 23, 1, Q("6.285268 mm")))
sketch5.addConstraint(Sketcher.Constraint("Distance", 0, Q("4.363961 mm")))
pocket4 = body.newObject("PartDesign::Pocket", "Pocket003")
pocket4.Profile = sketch5
pocket4.setExpression("Length", "Params.pocket4_length")
pocket4.Reversed = True

sketch6 = body.newObject("Sketcher::SketchObject", "Sketch005")
sketch6.AttachmentSupport = (doc.getObject("XY_Plane"), [""])
sketch6.MapMode = "FlatFace"
sketch6.addGeometry(Part.LineSegment(V(-12.1, 4.5, 0), V(-9, 1.4, 0)), False)
sketch6.addGeometry(Part.LineSegment(V(-9, 1.4, 0), V(-5.9, 4.5, 0)), False)
sketch6.addGeometry(Part.LineSegment(V(-5.9, 4.5, 0), V(-9, 7.6, 0)), False)
sketch6.addGeometry(Part.LineSegment(V(-9, 7.6, 0), V(-12.1, 4.5, 0)), False)
sketch6.addGeometry(Part.LineSegment(V(-1.4, 0, 0), V(-4.5, 3.1, 0)), False)
sketch6.addGeometry(Part.LineSegment(V(-4.5, 3.1, 0), V(-7.6, 0, 0)), False)
sketch6.addGeometry(Part.LineSegment(V(-7.6, 0, 0), V(-4.5, -3.1, 0)), False)
sketch6.addGeometry(Part.LineSegment(V(-4.5, -3.1, 0), V(-1.4, 0, 0)), False)
sketch6.addGeometry(Part.LineSegment(V(-12.1, -4.5, 0), V(-9, -7.6, 0)), False)
sketch6.addGeometry(Part.LineSegment(V(-9, -7.6, 0), V(-5.9, -4.5, 0)), False)
sketch6.addGeometry(Part.LineSegment(V(-5.9, -4.5, 0), V(-9, -1.4, 0)), False)
sketch6.addGeometry(Part.LineSegment(V(-9, -1.4, 0), V(-12.1, -4.5, 0)), False)
sketch6.addGeometry(Part.LineSegment(V(-10.4, 0, 0), V(-13.5, 3.1, 0)), False)
sketch6.addGeometry(Part.LineSegment(V(-13.5, 3.1, 0), V(-16.6, 0, 0)), False)
sketch6.addGeometry(Part.LineSegment(V(-16.6, 0, 0), V(-13.5, -3.1, 0)), False)
sketch6.addGeometry(Part.LineSegment(V(-13.5, -3.1, 0), V(-10.4, 0, 0)), False)
sketch6.addGeometry(Part.LineSegment(V(-18, -1.4, 0), V(-18, -7.6, 0)), False)
sketch6.addGeometry(Part.LineSegment(V(-18, -7.6, 0), V(-14.9, -4.5, 0)), False)
sketch6.addGeometry(Part.LineSegment(V(-14.9, -4.5, 0), V(-18, -1.4, 0)), False)
sketch6.addGeometry(Part.LineSegment(V(-18, 7.6, 0), V(-18, 1.4, 0)), False)
sketch6.addGeometry(Part.LineSegment(V(-18, 1.4, 0), V(-14.9, 4.5, 0)), False)
sketch6.addGeometry(Part.LineSegment(V(-14.9, 4.5, 0), V(-18, 7.6, 0)), False)
sketch6.addConstraint(Sketcher.Constraint("Coincident", 0, 2, 1, 1))
sketch6.addConstraint(Sketcher.Constraint("Coincident", 1, 2, 2, 1))
sketch6.addConstraint(Sketcher.Constraint("Coincident", 2, 2, 3, 1))
sketch6.addConstraint(Sketcher.Constraint("Coincident", 3, 2, 0, 1))
sketch6.addConstraint(Sketcher.Constraint("Coincident", 4, 2, 5, 1))
sketch6.addConstraint(Sketcher.Constraint("Coincident", 5, 2, 6, 1))
sketch6.addConstraint(Sketcher.Constraint("Coincident", 6, 2, 7, 1))
sketch6.addConstraint(Sketcher.Constraint("Coincident", 7, 2, 4, 1))
sketch6.addConstraint(Sketcher.Constraint("Coincident", 8, 2, 9, 1))
sketch6.addConstraint(Sketcher.Constraint("Coincident", 9, 2, 10, 1))
sketch6.addConstraint(Sketcher.Constraint("Coincident", 10, 2, 11, 1))
sketch6.addConstraint(Sketcher.Constraint("Coincident", 11, 2, 8, 1))
sketch6.addConstraint(Sketcher.Constraint("Coincident", 12, 2, 13, 1))
sketch6.addConstraint(Sketcher.Constraint("Coincident", 13, 2, 14, 1))
sketch6.addConstraint(Sketcher.Constraint("Coincident", 14, 2, 15, 1))
sketch6.addConstraint(Sketcher.Constraint("Coincident", 15, 2, 12, 1))
sketch6.addConstraint(Sketcher.Constraint("Coincident", 16, 2, 17, 1))
sketch6.addConstraint(Sketcher.Constraint("Coincident", 17, 2, 18, 1))
sketch6.addConstraint(Sketcher.Constraint("Coincident", 18, 2, 16, 1))
sketch6.addConstraint(Sketcher.Constraint("Coincident", 19, 2, 20, 1))
sketch6.addConstraint(Sketcher.Constraint("Coincident", 20, 2, 21, 1))
sketch6.addConstraint(Sketcher.Constraint("Coincident", 21, 2, 19, 1))
sketch6.addConstraint(Sketcher.Constraint("Vertical", 16))
sketch6.addConstraint(Sketcher.Constraint("Vertical", 19))
sketch6.addConstraint(Sketcher.Constraint("Symmetric", 4, 2, 6, 2, -1))
sketch6.addConstraint(Sketcher.Constraint("Symmetric", 2, 2, 8, 2, -1))
sketch6.addConstraint(Sketcher.Constraint("Symmetric", 1, 2, 9, 2, -1))
sketch6.addConstraint(Sketcher.Constraint("Symmetric", 0, 2, 10, 2, -1))
sketch6.addConstraint(Sketcher.Constraint("Symmetric", 3, 2, 11, 2, -1))
sketch6.addConstraint(Sketcher.Constraint("Symmetric", 12, 2, 14, 2, -1))
sketch6.addConstraint(Sketcher.Constraint("Symmetric", 18, 2, 19, 2, -1))
sketch6.addConstraint(Sketcher.Constraint("Symmetric", 17, 2, 20, 2, -1))
sketch6.addConstraint(Sketcher.Constraint("PointOnObject", 5, 2, -1))
sketch6.addConstraint(Sketcher.Constraint("PointOnObject", 7, 2, -1))
sketch6.addConstraint(Sketcher.Constraint("PointOnObject", 13, 2, -1))
sketch6.addConstraint(Sketcher.Constraint("PointOnObject", 15, 2, -1))
sketch6.addConstraint(Sketcher.Constraint("Perpendicular", 0, 1))
sketch6.addConstraint(Sketcher.Constraint("Perpendicular", 1, 2))
sketch6.addConstraint(Sketcher.Constraint("Perpendicular", 2, 3))
sketch6.addConstraint(Sketcher.Constraint("Perpendicular", 3, 4))
sketch6.addConstraint(Sketcher.Constraint("Perpendicular", 4, 5))
sketch6.addConstraint(Sketcher.Constraint("Perpendicular", 5, 6))
sketch6.addConstraint(Sketcher.Constraint("Perpendicular", 11, 12))
sketch6.addConstraint(Sketcher.Constraint("Perpendicular", 12, 13))
sketch6.addConstraint(Sketcher.Constraint("Parallel", 15, 17))
sketch6.addConstraint(Sketcher.Constraint("Perpendicular", 17, 18))
sketch6.addConstraint(Sketcher.Constraint("Perpendicular", 20, 21))
sketch6.addConstraint(Sketcher.Constraint("Horizontal", 1, 2, 3, 2))
sketch6.addConstraint(Sketcher.Constraint("Horizontal", 4, 2, 12, 2))
sketch6.addConstraint(Sketcher.Constraint("Horizontal", 8, 2, 16, 2))
sketch6.addConstraint(Sketcher.Constraint("Horizontal", 11, 2, 17, 2))
sketch6.addConstraint(Sketcher.Constraint("Equal", 3, 4))
sketch6.addConstraint(Sketcher.Constraint("DistanceX", 0, 2, -1, 1, Q("9 mm")))
sketch6.addConstraint(Sketcher.Constraint("DistanceX", 16, 2, -1, 1, Q("18 mm")))
sketch6.addConstraint(Sketcher.Constraint("DistanceY", 8, 2, 0, 2, Q("9 mm")))
sketch6.addConstraint(Sketcher.Constraint("DistanceX", 4, 2, -1, 1, Q("4.5 mm")))
sketch6.addConstraint(Sketcher.Constraint("DistanceX", 12, 2, -1, 1, Q("13.5 mm")))
sketch6.addConstraint(Sketcher.Constraint("Distance", 0, Q("4.363961 mm")))
pocket5 = body.newObject("PartDesign::Pocket", "Pocket004")
pocket5.Profile = sketch6
pocket5.setExpression("Length", "Params.pocket5_length")
pocket5.Reversed = True

sketch7 = body.newObject("Sketcher::SketchObject", "Sketch006")
sketch7.AttachmentSupport = (doc.getObject("XY_Plane"), [""])
sketch7.MapMode = "FlatFace"
sketch7.addGeometry(Part.LineSegment(V(-1.4, 9, 0), V(-4.5, 12.1, 0)), False)
sketch7.addGeometry(Part.LineSegment(V(-4.5, 12.1, 0), V(-7.6, 9, 0)), False)
sketch7.addGeometry(Part.LineSegment(V(-7.6, 9, 0), V(-4.5, 5.9, 0)), False)
sketch7.addGeometry(Part.LineSegment(V(-4.5, 5.9, 0), V(-1.4, 9, 0)), False)
sketch7.addGeometry(Part.LineSegment(V(-12.1, 13.5, 0), V(-9, 10.4, 0)), False)
sketch7.addGeometry(Part.LineSegment(V(-9, 10.4, 0), V(-5.9, 13.5, 0)), False)
sketch7.addGeometry(Part.LineSegment(V(-5.9, 13.5, 0), V(-9, 16.6, 0)), False)
sketch7.addGeometry(Part.LineSegment(V(-9, 16.6, 0), V(-12.1, 13.5, 0)), False)
sketch7.addGeometry(Part.LineSegment(V(-10.4, 9, 0), V(-13.5, 12.1, 0)), False)
sketch7.addGeometry(Part.LineSegment(V(-13.5, 12.1, 0), V(-16.6, 9, 0)), False)
sketch7.addGeometry(Part.LineSegment(V(-16.6, 9, 0), V(-13.5, 5.9, 0)), False)
sketch7.addGeometry(Part.LineSegment(V(-13.5, 5.9, 0), V(-10.4, 9, 0)), False)
sketch7.addGeometry(Part.LineSegment(V(-18, 10.4, 0), V(-14.9, 13.5, 0)), False)
sketch7.addGeometry(Part.LineSegment(V(-14.9, 13.5, 0), V(-18, 16.6, 0)), False)
sketch7.addGeometry(Part.LineSegment(V(-18, 16.6, 0), V(-18, 10.4, 0)), False)
sketch7.addGeometry(Part.LineSegment(V(-13.5, 14.9, 0), V(-10.4, 18.1, 0)), False)
sketch7.addGeometry(Part.LineSegment(V(-10.4, 18.1, 0), V(-16.6, 18.1, 0)), False)
sketch7.addGeometry(Part.LineSegment(V(-16.6, 18.1, 0), V(-13.5, 14.9, 0)), False)
sketch7.addGeometry(Part.LineSegment(V(-1.4, 18.1, 0), V(-7.6, 18.1, 0)), False)
sketch7.addGeometry(Part.LineSegment(V(-7.6, 18.1, 0), V(-4.5, 14.9, 0)), False)
sketch7.addGeometry(Part.LineSegment(V(-4.5, 14.9, 0), V(-1.4, 18.1, 0)), False)
sketch7.addConstraint(Sketcher.Constraint("Coincident", 0, 2, 1, 1))
sketch7.addConstraint(Sketcher.Constraint("Coincident", 1, 2, 2, 1))
sketch7.addConstraint(Sketcher.Constraint("Coincident", 2, 2, 3, 1))
sketch7.addConstraint(Sketcher.Constraint("Coincident", 3, 2, 0, 1))
sketch7.addConstraint(Sketcher.Constraint("Coincident", 4, 2, 5, 1))
sketch7.addConstraint(Sketcher.Constraint("Coincident", 5, 2, 6, 1))
sketch7.addConstraint(Sketcher.Constraint("Coincident", 6, 2, 7, 1))
sketch7.addConstraint(Sketcher.Constraint("Coincident", 7, 2, 4, 1))
sketch7.addConstraint(Sketcher.Constraint("Coincident", 8, 2, 9, 1))
sketch7.addConstraint(Sketcher.Constraint("Coincident", 9, 2, 10, 1))
sketch7.addConstraint(Sketcher.Constraint("Coincident", 10, 2, 11, 1))
sketch7.addConstraint(Sketcher.Constraint("Coincident", 11, 2, 8, 1))
sketch7.addConstraint(Sketcher.Constraint("Coincident", 12, 2, 13, 1))
sketch7.addConstraint(Sketcher.Constraint("Coincident", 13, 2, 14, 1))
sketch7.addConstraint(Sketcher.Constraint("Coincident", 14, 2, 12, 1))
sketch7.addConstraint(Sketcher.Constraint("Coincident", 15, 2, 16, 1))
sketch7.addConstraint(Sketcher.Constraint("Coincident", 16, 2, 17, 1))
sketch7.addConstraint(Sketcher.Constraint("Coincident", 17, 2, 15, 1))
sketch7.addConstraint(Sketcher.Constraint("Coincident", 18, 2, 19, 1))
sketch7.addConstraint(Sketcher.Constraint("Coincident", 19, 2, 20, 1))
sketch7.addConstraint(Sketcher.Constraint("Coincident", 20, 2, 18, 1))
sketch7.addConstraint(Sketcher.Constraint("Vertical", 14))
sketch7.addConstraint(Sketcher.Constraint("Horizontal", 16))
sketch7.addConstraint(Sketcher.Constraint("Horizontal", 18))
sketch7.addConstraint(Sketcher.Constraint("Perpendicular", 0, 1))
sketch7.addConstraint(Sketcher.Constraint("Perpendicular", 1, 2))
sketch7.addConstraint(Sketcher.Constraint("Perpendicular", 2, 3))
sketch7.addConstraint(Sketcher.Constraint("Perpendicular", 3, 4))
sketch7.addConstraint(Sketcher.Constraint("Perpendicular", 4, 5))
sketch7.addConstraint(Sketcher.Constraint("Perpendicular", 5, 6))
sketch7.addConstraint(Sketcher.Constraint("Perpendicular", 6, 7))
sketch7.addConstraint(Sketcher.Constraint("Perpendicular", 7, 8))
sketch7.addConstraint(Sketcher.Constraint("Perpendicular", 8, 9))
sketch7.addConstraint(Sketcher.Constraint("Perpendicular", 9, 10))
sketch7.addConstraint(Sketcher.Constraint("Perpendicular", 10, 11))
sketch7.addConstraint(Sketcher.Constraint("Parallel", 11, 12))
sketch7.addConstraint(Sketcher.Constraint("Perpendicular", 12, 13))
sketch7.addConstraint(Sketcher.Constraint("Perpendicular", 13, 15))
sketch7.addConstraint(Sketcher.Constraint("Perpendicular", 15, 17))
sketch7.addConstraint(Sketcher.Constraint("Parallel", 17, 19))
sketch7.addConstraint(Sketcher.Constraint("Perpendicular", 19, 20))
sketch7.addConstraint(Sketcher.Constraint("Horizontal", 1, 2, 3, 2))
sketch7.addConstraint(Sketcher.Constraint("Horizontal", 5, 2, 7, 2))
sketch7.addConstraint(Sketcher.Constraint("Horizontal", 0, 2, 8, 2))
sketch7.addConstraint(Sketcher.Constraint("Horizontal", 3, 2, 9, 2))
sketch7.addConstraint(Sketcher.Constraint("Horizontal", 2, 2, 10, 2))
sketch7.addConstraint(Sketcher.Constraint("Horizontal", 7, 2, 12, 2))
sketch7.addConstraint(Sketcher.Constraint("Horizontal", 6, 2, 13, 2))
sketch7.addConstraint(Sketcher.Constraint("Horizontal", 4, 2, 14, 2))
sketch7.addConstraint(Sketcher.Constraint("Horizontal", 16, 2, 18, 2))
sketch7.addConstraint(Sketcher.Constraint("Horizontal", 17, 2, 19, 2))
sketch7.addConstraint(Sketcher.Constraint("Vertical", 10, 2, 17, 2))
sketch7.addConstraint(Sketcher.Constraint("Vertical", 2, 2, 19, 2))
sketch7.addConstraint(Sketcher.Constraint("Equal", 3, 4))
sketch7.addConstraint(Sketcher.Constraint("DistanceY", -1, 1, 1, 2, Q("9 mm")))
sketch7.addConstraint(Sketcher.Constraint("DistanceX", 4, 2, -1, 1, Q("9 mm")))
sketch7.addConstraint(Sketcher.Constraint("DistanceX", 13, 2, -1, 1, Q("18 mm")))
sketch7.addConstraint(Sketcher.Constraint("DistanceX", 9, 2, 1, 2, Q("9 mm")))
sketch7.addConstraint(Sketcher.Constraint("DistanceX", 0, 2, -1, 1, Q("4.5 mm")))
sketch7.addConstraint(Sketcher.Constraint("DistanceY", -1, 1, 5, 2, Q("13.5 mm")))
sketch7.addConstraint(Sketcher.Constraint("DistanceY", 4, 2, 19, 2, Q("4.5 mm")))
sketch7.addConstraint(Sketcher.Constraint("DistanceX", 16, 2, 16, 1, Q("6.285268 mm")))
sketch7.addConstraint(Sketcher.Constraint("Distance", 0, Q("4.363961 mm")))
pocket6 = body.newObject("PartDesign::Pocket", "Pocket005")
pocket6.Profile = sketch7
pocket6.setExpression("Length", "Params.pocket6_length")
pocket6.Reversed = True

doc.recompute()
